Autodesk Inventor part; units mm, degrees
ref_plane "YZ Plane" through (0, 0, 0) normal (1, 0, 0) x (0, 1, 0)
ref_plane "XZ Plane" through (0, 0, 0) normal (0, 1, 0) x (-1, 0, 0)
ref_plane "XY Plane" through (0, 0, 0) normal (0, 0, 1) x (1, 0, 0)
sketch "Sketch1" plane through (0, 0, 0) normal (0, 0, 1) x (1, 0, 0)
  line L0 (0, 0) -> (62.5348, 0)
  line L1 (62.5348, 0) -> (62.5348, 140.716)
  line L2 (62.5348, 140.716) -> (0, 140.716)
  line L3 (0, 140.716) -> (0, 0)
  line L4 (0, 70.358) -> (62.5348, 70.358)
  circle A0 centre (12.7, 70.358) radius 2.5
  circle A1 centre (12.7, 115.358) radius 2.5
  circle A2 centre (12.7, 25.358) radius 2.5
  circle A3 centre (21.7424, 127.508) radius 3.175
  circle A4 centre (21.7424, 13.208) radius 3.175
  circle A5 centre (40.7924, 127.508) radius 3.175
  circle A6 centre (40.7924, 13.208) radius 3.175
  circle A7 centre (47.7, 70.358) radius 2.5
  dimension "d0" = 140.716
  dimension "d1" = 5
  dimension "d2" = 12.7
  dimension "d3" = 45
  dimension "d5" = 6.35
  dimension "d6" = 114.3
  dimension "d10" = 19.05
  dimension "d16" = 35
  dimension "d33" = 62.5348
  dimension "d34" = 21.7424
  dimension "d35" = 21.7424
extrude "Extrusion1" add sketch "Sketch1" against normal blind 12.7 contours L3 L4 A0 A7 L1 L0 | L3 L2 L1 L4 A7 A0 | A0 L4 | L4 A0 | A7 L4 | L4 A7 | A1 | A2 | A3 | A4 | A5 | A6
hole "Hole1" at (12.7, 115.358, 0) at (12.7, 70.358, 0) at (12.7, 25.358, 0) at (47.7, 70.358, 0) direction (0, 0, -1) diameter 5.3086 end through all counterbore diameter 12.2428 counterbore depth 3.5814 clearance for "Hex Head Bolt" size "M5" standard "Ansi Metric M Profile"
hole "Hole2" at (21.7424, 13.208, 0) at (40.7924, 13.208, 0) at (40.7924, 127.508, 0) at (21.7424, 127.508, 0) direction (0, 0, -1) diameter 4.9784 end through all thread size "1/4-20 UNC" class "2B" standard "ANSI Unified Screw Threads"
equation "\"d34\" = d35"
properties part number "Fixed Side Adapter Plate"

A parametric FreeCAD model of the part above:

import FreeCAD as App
import Part
import Sketcher
Q = App.Units.Quantity

doc = App.newDocument("Part")
params = doc.addObject("Spreadsheet::Sheet", "Params")
for row, (alias, value) in enumerate([
    ("sketch1_height", "5.54 in"),
    ("sketch1_width", "2.462 in"),
    ("pad1_length", "0.5 in"),
    ("sketch2_diameter", "0.209 in"),
    ("hole_diameter", "0.209 in"),
    ("hole_cbore_diameter", "0.482 in"),
    ("hole_cbore_depth", "0.141 in"),
    ("sketch3_diameter", "0.196 in"),
    ("hole2_diameter", "0.196 in"),
], start=1):
    params.set(f"A{row}", alias)
    params.set(f"B{row}", "=" + value)
    params.setAlias(f"B{row}", alias)

body = doc.addObject("PartDesign::Body", "Body")

# Sketch on XY plane
sketch1 = body.newObject("Sketcher::SketchObject", "Sketch")
sketch1.AttachmentSupport = (doc.getObject("XY_Plane"), [""])
sketch1.MapMode = "FlatFace"
sketch1.addGeometry([
    Part.LineSegment(App.Vector(0, 0, 0), App.Vector(63, 0, 0)),
    Part.LineSegment(App.Vector(63, 0, 0), App.Vector(63, 141, 0)),
    Part.LineSegment(App.Vector(63, 141, 0), App.Vector(0, 141, 0)),
    Part.LineSegment(App.Vector(0, 141, 0), App.Vector(0, 0, 0)),
], False)
sketch1.addConstraint([
    Sketcher.Constraint("Coincident", 0, 2, 1, 1),
    Sketcher.Constraint("Coincident", 1, 2, 2, 1),
    Sketcher.Constraint("Coincident", 2, 2, 3, 1),
    Sketcher.Constraint("Coincident", 3, 2, 0, 1),
    Sketcher.Constraint("Horizontal", 0),
    Sketcher.Constraint("Vertical", 1),
    Sketcher.Constraint("Horizontal", 2),
    Sketcher.Constraint("Vertical", 3),
    Sketcher.Constraint("Coincident", 3, 2, -1, 1),
    Sketcher.Constraint("DistanceY", 1, 1, 1, 2, Q("5.54 in")),
    Sketcher.Constraint("DistanceX", 0, 1, 0, 2, Q("2.462 in")),
])
sketch1.setExpression("Constraints[9]", "Params.sketch1_height")
sketch1.setExpression("Constraints[10]", "Params.sketch1_width")
pad1 = body.newObject("PartDesign::Pad", "Pad")
pad1.Profile = sketch1
pad1.setExpression("Length", "Params.pad1_length")
pad1.Reversed = True

# Sketch on XY plane
sketch2 = body.newObject("Sketcher::SketchObject", "Sketch001")
sketch2.AttachmentSupport = (doc.getObject("XY_Plane"), [""])
sketch2.MapMode = "FlatFace"
sketch2.addGeometry([
    Part.Circle(App.Vector(12.7, 115.4, 0), App.Vector(0, 0, 1), 2.7),
    Part.Circle(App.Vector(12.7, 70.4, 0), App.Vector(0, 0, 1), 2.7),
    Part.Circle(App.Vector(12.7, 25.4, 0), App.Vector(0, 0, 1), 2.7),
    Part.Circle(App.Vector(47.7, 70.4, 0), App.Vector(0, 0, 1), 2.7),
], False)
sketch2.addConstraint([
    Sketcher.Constraint("Equal", 0, 1),
    Sketcher.Constraint("Equal", 1, 2),
    Sketcher.Constraint("Equal", 2, 3),
    Sketcher.Constraint("Horizontal", 1, 3, 3, 3),
    Sketcher.Constraint("Vertical", 0, 3, 1, 3),
    Sketcher.Constraint("Vertical", 1, 3, 2, 3),
    Sketcher.Constraint("Diameter", 0, Q("0.209 in")),
    Sketcher.Constraint("DistanceX", -1, 1, 0, 3, Q("0.5 in")),
    Sketcher.Constraint("DistanceY", -1, 1, 1, 3, Q("2.77 in")),
    Sketcher.Constraint("DistanceY", 2, 3, 0, 3, Q("3.5433 in")),
    Sketcher.Constraint("DistanceY", -1, 1, 0, 3, 115.358),
    Sketcher.Constraint("DistanceX", -1, 1, 3, 3, 47.7),
])
sketch2.setExpression("Constraints[6]", "Params.sketch2_diameter")
doc.recompute()
hole = body.newObject("PartDesign::Hole", "Hole")
hole.Profile = sketch2
hole.ThreadType = "None"
hole.setExpression("Diameter", "Params.hole_diameter")
hole.DepthType = "ThroughAll"
hole.HoleCutType = "Counterbore"
hole.setExpression("HoleCutDiameter", "Params.hole_cbore_diameter")
hole.setExpression("HoleCutDepth", "Params.hole_cbore_depth")

# Sketch on XY plane
sketch3 = body.newObject("Sketcher::SketchObject", "Sketch002")
sketch3.AttachmentSupport = (doc.getObject("XY_Plane"), [""])
sketch3.MapMode = "FlatFace"
sketch3.addGeometry([
    Part.Circle(App.Vector(21.7, 13.2, 0), App.Vector(0, 0, 1), 2.5),
    Part.Circle(App.Vector(40.8, 13.2, 0), App.Vector(0, 0, 1), 2.5),
    Part.Circle(App.Vector(40.8, 127.5, 0), App.Vector(0, 0, 1), 2.5),
    Part.Circle(App.Vector(21.7, 127.5, 0), App.Vector(0, 0, 1), 2.5),
], False)
sketch3.addConstraint([
    Sketcher.Constraint("Equal", 0, 1),
    Sketcher.Constraint("Equal", 1, 2),
    Sketcher.Constraint("Equal", 2, 3),
    Sketcher.Constraint("Horizontal", 0, 3, 1, 3),
    Sketcher.Constraint("Horizontal", 2, 3, 3, 3),
    Sketcher.Constraint("Vertical", 1, 3, 2, 3),
    Sketcher.Constraint("Vertical", 0, 3, 3, 3),
    Sketcher.Constraint("Diameter", 0, Q("0.196 in")),
    Sketcher.Constraint("DistanceY", 1, 3, 2, 3, Q("4.5 in")),
    Sketcher.Constraint("DistanceY", -1, 1, 0, 3, Q("0.52 in")),
    Sketcher.Constraint("DistanceX", 0, 3, 1, 3, Q("0.75 in")),
    Sketcher.Constraint("DistanceX", -1, 1, 0, 3, Q("0.856 in")),
])
sketch3.setExpression("Constraints[7]", "Params.sketch3_diameter")
doc.recompute()
hole2 = body.newObject("PartDesign::Hole", "Hole001")
hole2.Profile = sketch3
hole2.ThreadType = "None"
hole2.setExpression("Diameter", "Params.hole2_diameter")
hole2.DepthType = "ThroughAll"

doc.recompute()
